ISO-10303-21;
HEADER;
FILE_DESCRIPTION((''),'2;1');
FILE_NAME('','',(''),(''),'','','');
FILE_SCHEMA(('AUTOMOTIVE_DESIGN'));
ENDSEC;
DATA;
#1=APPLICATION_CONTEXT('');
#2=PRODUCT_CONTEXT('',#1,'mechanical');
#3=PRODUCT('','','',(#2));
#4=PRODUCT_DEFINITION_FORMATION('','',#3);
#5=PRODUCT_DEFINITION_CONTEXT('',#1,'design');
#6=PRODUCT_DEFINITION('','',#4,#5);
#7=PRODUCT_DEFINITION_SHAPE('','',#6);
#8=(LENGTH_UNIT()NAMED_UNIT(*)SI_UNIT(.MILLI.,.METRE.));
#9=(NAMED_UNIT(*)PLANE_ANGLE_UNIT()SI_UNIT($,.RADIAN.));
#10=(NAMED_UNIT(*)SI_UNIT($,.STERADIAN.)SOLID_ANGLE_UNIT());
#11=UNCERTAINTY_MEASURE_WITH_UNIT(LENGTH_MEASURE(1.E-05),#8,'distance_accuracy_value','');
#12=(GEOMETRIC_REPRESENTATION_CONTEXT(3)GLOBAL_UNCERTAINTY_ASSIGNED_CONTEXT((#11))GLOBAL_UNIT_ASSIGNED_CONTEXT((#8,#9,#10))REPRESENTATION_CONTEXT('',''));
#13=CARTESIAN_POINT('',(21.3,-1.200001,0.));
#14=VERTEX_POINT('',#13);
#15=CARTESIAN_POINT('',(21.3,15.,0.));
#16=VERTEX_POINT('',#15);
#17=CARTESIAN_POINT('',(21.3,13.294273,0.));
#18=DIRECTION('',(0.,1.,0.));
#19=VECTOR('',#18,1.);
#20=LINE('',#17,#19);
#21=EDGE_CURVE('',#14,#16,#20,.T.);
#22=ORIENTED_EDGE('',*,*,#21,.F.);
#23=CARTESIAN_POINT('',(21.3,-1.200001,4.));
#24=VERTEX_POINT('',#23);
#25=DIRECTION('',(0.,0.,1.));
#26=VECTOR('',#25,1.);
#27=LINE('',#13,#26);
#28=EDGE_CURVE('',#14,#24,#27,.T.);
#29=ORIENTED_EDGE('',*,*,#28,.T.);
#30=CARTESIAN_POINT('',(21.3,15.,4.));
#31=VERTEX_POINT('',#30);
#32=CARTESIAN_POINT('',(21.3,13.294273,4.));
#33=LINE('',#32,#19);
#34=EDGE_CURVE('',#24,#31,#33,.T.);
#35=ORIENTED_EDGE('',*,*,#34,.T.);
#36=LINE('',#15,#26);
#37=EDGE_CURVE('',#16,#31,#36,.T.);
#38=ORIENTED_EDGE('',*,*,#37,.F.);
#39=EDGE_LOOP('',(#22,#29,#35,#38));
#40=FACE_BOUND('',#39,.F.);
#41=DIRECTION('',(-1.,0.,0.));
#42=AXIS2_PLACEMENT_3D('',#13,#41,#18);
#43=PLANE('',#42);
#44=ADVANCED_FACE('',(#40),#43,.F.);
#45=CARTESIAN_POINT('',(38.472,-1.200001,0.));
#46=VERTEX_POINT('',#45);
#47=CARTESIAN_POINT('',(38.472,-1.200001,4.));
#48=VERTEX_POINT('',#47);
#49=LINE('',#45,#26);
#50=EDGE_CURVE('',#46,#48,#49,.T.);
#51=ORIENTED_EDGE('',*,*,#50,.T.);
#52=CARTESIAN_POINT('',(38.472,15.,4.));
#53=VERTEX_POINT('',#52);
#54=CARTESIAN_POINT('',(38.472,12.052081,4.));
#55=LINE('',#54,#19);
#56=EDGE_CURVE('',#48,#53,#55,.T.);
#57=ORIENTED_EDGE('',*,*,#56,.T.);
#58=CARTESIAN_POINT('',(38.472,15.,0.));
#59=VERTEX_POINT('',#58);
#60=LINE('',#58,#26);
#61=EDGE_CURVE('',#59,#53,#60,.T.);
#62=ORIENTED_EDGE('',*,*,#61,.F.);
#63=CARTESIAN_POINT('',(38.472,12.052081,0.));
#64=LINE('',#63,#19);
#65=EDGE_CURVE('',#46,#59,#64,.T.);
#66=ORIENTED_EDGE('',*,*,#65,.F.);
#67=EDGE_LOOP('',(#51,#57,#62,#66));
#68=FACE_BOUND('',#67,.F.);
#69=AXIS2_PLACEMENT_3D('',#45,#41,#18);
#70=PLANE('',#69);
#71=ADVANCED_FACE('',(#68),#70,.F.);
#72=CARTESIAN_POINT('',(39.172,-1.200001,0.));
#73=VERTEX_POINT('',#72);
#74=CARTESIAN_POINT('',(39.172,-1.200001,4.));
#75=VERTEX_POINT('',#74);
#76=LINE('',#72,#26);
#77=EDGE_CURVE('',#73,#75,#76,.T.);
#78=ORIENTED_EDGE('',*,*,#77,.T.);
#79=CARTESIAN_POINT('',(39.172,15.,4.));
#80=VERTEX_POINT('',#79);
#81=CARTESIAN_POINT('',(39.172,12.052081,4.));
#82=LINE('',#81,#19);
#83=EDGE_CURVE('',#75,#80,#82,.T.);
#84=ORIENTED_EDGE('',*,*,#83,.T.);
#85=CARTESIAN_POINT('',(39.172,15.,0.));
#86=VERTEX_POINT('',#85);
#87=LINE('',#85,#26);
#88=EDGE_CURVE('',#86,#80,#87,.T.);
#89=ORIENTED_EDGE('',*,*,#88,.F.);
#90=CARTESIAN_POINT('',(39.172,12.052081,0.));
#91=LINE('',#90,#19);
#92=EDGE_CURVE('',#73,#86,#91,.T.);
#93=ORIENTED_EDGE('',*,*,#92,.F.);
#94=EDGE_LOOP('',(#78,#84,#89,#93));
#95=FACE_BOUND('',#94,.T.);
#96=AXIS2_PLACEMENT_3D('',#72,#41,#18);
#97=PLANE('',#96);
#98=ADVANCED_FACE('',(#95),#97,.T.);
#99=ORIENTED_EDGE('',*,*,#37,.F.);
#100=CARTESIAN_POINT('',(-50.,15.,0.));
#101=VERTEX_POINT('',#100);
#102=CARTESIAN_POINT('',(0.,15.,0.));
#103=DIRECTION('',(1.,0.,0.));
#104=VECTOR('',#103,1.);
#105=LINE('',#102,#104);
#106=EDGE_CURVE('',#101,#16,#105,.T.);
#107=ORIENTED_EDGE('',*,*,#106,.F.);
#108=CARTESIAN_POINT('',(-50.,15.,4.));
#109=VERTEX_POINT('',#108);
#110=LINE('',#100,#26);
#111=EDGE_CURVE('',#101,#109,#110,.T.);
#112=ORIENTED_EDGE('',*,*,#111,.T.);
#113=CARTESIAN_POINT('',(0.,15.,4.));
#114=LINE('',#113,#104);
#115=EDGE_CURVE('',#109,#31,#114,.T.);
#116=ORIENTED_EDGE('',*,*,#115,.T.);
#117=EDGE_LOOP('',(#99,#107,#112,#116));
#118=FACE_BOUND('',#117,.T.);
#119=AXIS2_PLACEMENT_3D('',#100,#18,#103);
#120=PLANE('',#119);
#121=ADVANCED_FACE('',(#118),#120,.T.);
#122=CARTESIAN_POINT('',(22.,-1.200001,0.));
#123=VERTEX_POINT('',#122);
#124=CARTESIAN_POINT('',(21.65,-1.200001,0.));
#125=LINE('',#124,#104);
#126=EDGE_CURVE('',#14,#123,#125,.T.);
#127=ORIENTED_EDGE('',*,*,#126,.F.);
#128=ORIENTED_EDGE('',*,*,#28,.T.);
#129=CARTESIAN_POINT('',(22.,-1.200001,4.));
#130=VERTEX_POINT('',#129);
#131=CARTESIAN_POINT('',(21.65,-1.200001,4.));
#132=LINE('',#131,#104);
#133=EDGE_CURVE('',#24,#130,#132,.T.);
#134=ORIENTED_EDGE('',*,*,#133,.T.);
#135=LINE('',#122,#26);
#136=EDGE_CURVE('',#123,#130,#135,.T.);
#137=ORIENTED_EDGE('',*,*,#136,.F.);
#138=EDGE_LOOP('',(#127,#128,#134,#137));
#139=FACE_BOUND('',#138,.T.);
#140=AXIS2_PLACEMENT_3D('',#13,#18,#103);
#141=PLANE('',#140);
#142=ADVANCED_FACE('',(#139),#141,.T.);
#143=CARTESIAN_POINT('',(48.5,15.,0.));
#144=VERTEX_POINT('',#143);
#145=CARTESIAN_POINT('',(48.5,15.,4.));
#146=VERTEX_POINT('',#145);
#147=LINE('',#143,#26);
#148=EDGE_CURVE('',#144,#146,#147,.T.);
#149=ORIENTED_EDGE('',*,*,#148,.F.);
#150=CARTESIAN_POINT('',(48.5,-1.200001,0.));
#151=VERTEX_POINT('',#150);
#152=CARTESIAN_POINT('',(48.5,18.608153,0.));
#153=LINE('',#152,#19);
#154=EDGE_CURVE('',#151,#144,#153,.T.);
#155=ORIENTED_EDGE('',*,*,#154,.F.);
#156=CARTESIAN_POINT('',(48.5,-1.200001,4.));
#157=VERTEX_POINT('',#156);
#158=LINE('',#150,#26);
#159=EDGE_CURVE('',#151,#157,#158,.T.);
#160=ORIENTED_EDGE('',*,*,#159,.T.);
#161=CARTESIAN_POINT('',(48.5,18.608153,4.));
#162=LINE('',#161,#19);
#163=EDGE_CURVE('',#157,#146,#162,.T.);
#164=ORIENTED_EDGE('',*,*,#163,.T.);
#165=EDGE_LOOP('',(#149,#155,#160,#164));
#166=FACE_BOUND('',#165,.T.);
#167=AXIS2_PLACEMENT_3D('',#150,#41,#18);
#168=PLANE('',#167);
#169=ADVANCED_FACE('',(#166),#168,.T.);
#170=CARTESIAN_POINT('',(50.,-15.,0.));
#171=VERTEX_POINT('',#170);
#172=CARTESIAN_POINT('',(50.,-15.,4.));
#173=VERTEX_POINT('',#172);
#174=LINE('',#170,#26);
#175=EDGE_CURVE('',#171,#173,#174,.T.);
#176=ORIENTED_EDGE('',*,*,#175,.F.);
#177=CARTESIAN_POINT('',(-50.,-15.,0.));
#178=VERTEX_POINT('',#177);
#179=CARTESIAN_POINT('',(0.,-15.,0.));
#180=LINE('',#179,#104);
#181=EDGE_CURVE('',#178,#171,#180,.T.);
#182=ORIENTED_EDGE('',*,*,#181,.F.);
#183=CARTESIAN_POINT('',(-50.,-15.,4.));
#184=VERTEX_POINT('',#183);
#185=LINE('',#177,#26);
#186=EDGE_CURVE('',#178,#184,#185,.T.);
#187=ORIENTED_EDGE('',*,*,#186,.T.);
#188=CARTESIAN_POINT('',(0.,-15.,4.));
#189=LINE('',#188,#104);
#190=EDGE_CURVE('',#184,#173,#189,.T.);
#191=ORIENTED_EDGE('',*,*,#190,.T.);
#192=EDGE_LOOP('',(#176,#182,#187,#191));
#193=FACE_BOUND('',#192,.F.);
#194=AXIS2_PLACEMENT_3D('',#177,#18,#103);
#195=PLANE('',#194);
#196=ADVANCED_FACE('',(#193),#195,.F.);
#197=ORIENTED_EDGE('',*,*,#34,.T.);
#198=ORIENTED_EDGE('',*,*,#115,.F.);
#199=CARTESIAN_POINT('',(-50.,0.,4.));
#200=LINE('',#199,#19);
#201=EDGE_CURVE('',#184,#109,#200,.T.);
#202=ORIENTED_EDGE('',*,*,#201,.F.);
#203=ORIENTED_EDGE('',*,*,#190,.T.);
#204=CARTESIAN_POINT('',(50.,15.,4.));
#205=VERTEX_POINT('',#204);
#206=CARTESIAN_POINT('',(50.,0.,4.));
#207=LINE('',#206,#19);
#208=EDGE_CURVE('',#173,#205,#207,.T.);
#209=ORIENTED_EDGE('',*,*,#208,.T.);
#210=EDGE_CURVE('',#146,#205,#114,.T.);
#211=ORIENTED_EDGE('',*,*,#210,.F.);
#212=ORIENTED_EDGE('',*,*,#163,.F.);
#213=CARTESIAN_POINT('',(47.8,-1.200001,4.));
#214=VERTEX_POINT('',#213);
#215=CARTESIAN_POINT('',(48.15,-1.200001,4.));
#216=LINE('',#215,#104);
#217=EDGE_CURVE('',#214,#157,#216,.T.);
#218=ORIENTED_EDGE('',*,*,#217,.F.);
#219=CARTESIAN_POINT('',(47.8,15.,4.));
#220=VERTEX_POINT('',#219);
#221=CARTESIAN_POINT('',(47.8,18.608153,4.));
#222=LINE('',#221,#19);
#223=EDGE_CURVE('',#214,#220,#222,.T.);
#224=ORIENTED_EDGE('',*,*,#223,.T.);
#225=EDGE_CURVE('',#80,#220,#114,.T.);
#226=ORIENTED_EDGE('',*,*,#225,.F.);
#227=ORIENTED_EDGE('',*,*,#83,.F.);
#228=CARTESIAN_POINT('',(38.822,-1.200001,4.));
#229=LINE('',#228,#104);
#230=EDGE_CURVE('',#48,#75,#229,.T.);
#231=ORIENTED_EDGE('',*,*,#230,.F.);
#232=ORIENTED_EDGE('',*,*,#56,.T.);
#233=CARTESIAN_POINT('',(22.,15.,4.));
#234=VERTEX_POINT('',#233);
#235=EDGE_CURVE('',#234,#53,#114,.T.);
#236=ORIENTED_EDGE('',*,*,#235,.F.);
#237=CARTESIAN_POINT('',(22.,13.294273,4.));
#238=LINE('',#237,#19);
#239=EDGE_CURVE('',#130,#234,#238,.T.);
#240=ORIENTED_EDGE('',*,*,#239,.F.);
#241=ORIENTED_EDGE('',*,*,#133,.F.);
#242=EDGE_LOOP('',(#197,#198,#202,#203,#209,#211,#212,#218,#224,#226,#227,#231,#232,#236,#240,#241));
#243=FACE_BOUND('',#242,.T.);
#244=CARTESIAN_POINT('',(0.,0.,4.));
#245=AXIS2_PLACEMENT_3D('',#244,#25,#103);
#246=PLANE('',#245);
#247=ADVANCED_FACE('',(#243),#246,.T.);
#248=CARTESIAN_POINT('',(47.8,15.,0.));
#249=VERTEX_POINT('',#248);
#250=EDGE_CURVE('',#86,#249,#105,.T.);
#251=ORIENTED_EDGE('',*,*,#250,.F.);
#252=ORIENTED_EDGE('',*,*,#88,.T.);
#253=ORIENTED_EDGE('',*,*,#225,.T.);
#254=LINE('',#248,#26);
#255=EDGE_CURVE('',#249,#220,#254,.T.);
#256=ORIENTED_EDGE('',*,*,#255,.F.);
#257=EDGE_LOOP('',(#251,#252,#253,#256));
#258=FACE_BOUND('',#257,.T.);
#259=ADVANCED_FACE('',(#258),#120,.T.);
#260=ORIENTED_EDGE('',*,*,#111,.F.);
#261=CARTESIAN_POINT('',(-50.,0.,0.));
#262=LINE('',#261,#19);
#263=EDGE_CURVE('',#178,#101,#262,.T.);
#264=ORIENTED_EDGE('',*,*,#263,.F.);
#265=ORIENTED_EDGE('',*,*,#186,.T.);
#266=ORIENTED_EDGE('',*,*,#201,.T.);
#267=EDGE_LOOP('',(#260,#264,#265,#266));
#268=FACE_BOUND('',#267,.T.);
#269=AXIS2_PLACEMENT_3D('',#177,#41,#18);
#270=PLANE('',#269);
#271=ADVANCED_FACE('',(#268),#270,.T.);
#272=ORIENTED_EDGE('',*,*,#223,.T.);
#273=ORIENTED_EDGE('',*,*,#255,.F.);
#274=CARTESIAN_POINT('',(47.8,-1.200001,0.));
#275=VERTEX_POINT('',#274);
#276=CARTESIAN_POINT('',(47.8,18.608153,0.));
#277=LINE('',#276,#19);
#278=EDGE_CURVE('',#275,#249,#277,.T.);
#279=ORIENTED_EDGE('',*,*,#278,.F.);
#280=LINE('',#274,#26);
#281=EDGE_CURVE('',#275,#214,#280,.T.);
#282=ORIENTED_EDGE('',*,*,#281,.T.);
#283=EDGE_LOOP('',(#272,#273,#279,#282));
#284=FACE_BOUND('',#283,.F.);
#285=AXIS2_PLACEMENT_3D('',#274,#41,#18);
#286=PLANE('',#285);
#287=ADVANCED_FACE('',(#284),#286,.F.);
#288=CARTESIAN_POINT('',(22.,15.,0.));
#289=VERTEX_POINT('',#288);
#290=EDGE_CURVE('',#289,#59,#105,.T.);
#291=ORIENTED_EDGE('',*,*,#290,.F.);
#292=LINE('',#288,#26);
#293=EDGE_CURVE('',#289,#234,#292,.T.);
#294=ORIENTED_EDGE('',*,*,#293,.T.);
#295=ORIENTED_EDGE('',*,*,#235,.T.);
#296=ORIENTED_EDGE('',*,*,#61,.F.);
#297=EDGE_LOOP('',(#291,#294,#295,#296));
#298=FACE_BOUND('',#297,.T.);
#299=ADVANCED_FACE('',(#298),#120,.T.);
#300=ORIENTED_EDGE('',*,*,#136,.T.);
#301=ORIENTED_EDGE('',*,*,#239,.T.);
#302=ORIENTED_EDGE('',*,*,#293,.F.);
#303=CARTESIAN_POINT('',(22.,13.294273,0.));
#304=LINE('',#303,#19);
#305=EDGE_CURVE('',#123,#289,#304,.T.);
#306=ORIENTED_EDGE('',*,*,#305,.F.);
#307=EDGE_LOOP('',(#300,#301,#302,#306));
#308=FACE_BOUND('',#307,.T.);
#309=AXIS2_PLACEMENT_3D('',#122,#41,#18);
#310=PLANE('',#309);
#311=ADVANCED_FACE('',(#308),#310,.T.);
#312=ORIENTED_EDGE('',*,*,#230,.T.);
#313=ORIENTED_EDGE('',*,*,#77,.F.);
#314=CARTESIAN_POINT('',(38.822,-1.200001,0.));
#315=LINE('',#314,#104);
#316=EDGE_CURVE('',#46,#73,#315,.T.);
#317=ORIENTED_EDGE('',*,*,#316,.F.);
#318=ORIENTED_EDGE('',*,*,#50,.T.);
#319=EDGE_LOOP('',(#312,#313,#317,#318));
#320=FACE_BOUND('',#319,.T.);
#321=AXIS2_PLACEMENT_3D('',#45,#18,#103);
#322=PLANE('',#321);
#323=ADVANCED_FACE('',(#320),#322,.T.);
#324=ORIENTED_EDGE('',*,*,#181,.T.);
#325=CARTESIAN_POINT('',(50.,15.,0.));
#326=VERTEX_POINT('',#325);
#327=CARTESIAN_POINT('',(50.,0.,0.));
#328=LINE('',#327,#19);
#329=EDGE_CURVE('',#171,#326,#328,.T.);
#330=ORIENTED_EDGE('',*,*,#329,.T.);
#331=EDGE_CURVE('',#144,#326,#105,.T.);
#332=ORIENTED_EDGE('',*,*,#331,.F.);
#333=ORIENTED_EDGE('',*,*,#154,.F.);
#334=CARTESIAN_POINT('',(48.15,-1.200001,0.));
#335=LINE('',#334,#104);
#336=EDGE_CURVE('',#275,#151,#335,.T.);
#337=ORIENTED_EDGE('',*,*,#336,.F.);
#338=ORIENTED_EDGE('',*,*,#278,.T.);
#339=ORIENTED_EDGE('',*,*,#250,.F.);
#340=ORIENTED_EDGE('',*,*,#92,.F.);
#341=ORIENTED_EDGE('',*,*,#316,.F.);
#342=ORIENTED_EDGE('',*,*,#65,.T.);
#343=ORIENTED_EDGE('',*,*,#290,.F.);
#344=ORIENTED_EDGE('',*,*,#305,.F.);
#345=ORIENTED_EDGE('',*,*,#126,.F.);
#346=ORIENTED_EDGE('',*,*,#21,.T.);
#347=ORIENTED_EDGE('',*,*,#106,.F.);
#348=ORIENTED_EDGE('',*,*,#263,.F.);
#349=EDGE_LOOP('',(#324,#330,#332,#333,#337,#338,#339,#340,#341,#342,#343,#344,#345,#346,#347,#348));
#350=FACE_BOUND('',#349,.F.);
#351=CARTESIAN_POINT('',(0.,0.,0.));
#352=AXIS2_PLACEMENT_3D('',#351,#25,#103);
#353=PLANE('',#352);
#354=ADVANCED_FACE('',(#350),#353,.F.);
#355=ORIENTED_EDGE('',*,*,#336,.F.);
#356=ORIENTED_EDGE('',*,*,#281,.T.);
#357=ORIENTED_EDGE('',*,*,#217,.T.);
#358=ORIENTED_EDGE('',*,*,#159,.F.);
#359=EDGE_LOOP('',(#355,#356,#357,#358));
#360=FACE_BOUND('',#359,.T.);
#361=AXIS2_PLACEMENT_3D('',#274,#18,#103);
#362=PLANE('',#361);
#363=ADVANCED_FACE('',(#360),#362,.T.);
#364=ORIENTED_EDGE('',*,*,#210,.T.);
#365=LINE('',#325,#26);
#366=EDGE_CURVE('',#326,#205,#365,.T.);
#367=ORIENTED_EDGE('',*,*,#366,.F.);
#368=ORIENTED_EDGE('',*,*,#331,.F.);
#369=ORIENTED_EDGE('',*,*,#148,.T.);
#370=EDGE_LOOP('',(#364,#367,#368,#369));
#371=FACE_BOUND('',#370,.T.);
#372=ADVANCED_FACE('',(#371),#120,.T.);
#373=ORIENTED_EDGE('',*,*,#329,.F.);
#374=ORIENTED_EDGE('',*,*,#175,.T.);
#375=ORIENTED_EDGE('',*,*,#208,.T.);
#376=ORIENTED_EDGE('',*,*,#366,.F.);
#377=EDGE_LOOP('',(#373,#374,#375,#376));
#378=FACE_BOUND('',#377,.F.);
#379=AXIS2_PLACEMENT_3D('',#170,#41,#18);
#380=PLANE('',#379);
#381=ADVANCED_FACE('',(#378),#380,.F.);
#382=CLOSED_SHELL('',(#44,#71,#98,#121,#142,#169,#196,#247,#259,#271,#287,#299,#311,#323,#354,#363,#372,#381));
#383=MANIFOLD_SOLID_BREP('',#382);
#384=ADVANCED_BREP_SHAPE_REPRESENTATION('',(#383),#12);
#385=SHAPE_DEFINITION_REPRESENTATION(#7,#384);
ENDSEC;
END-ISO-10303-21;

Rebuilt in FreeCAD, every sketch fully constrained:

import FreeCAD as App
import Part
import Sketcher

V = App.Vector

doc = App.newDocument("Part")
params = doc.addObject("Spreadsheet::Sheet", "Params")
for row, (alias, value) in enumerate([
    ("sketch1_width", "100 mm"),
    ("sketch1_height", "30 mm"),
    ("pad1_length", "4 mm"),
    ("sketch2_width", "0.7 mm"),
    ("pocket1_length", "4 mm"),
], start=1):
    params.set(f"A{row}", alias)
    params.set(f"B{row}", "=" + value)
    params.setAlias(f"B{row}", alias)

body = doc.addObject("PartDesign::Body", "Body")

# Sketch on XY plane
sketch1 = body.newObject("Sketcher::SketchObject", "Sketch")
sketch1.AttachmentSupport = (doc.getObject("XY_Plane"), [""])
sketch1.MapMode = "FlatFace"
sketch1.addGeometry([
    Part.LineSegment(V(-50, 15, 0), V(-50, -15, 0)),
    Part.LineSegment(V(-50, -15, 0), V(50, -15, 0)),
    Part.LineSegment(V(50, -15, 0), V(50, 15, 0)),
    Part.LineSegment(V(50, 15, 0), V(-50, 15, 0)),
], False)
sketch1.addConstraint([
    Sketcher.Constraint("Coincident", 0, 2, 1, 1),
    Sketcher.Constraint("Coincident", 1, 2, 2, 1),
    Sketcher.Constraint("Coincident", 2, 2, 3, 1),
    Sketcher.Constraint("Coincident", 3, 2, 0, 1),
    Sketcher.Constraint("Vertical", 0),
    Sketcher.Constraint("Horizontal", 1),
    Sketcher.Constraint("Vertical", 2),
    Sketcher.Constraint("Horizontal", 3),
    Sketcher.Constraint("Symmetric", 0, 2, 2, 2, -1, 1),
    Sketcher.Constraint("DistanceX", 1, 1, 1, 2, 100.0),
    Sketcher.Constraint("DistanceY", 0, 2, 0, 1, 30.0),
])
sketch1.setExpression("Constraints[9]", "Params.sketch1_width")
sketch1.setExpression("Constraints[10]", "Params.sketch1_height")
pad1 = body.newObject("PartDesign::Pad", "Pad")
pad1.Profile = sketch1
pad1.setExpression("Length", "Params.pad1_length")

# Sketch on XY plane
sketch2 = body.newObject("Sketcher::SketchObject", "Sketch001")
sketch2.AttachmentSupport = (doc.getObject("XY_Plane"), [""])
sketch2.MapMode = "FlatFace"
sketch2.addGeometry([
    Part.LineSegment(V(21.3, 27.8, 0), V(21.3, -1.2, 0)),  # 0
    Part.LineSegment(V(21.3, -1.2, 0), V(22, -1.2, 0)),  # 1
    Part.LineSegment(V(22, -1.2, 0), V(22, 27.8, 0)),  # 2
    Part.LineSegment(V(22, 27.8, 0), V(21.3, 27.8, 0)),  # 3
    Part.LineSegment(V(47.8, 38.4, 0), V(47.8, -1.2, 0)),  # 4
    Part.LineSegment(V(47.8, -1.2, 0), V(48.5, -1.2, 0)),  # 5
    Part.LineSegment(V(48.5, -1.2, 0), V(48.5, 38.4, 0)),  # 6
    Part.LineSegment(V(48.5, 38.4, 0), V(47.8, 38.4, 0)),  # 7
    Part.LineSegment(V(38.5, 25.3, 0), V(38.5, -1.2, 0)),  # 8
    Part.LineSegment(V(38.5, -1.2, 0), V(39.2, -1.2, 0)),  # 9
    Part.LineSegment(V(39.2, -1.2, 0), V(39.2, 25.3, 0)),  # 10
    Part.LineSegment(V(39.2, 25.3, 0), V(38.5, 25.3, 0)),  # 11
], False)
sketch2.addConstraint([
    Sketcher.Constraint("Coincident", 0, 2, 1, 1),
    Sketcher.Constraint("Coincident", 1, 2, 2, 1),
    Sketcher.Constraint("Coincident", 2, 2, 3, 1),
    Sketcher.Constraint("Coincident", 3, 2, 0, 1),
    Sketcher.Constraint("Coincident", 4, 2, 5, 1),
    Sketcher.Constraint("Coincident", 5, 2, 6, 1),
    Sketcher.Constraint("Coincident", 6, 2, 7, 1),
    Sketcher.Constraint("Coincident", 7, 2, 4, 1),
    Sketcher.Constraint("Coincident", 8, 2, 9, 1),
    Sketcher.Constraint("Coincident", 9, 2, 10, 1),
    Sketcher.Constraint("Coincident", 10, 2, 11, 1),
    Sketcher.Constraint("Coincident", 11, 2, 8, 1),
    Sketcher.Constraint("Vertical", 0),
    Sketcher.Constraint("Horizontal", 1),
    Sketcher.Constraint("Vertical", 2),
    Sketcher.Constraint("Horizontal", 3),
    Sketcher.Constraint("Vertical", 4),
    Sketcher.Constraint("Horizontal", 5),
    Sketcher.Constraint("Vertical", 6),
    Sketcher.Constraint("Horizontal", 7),
    Sketcher.Constraint("Vertical", 8),
    Sketcher.Constraint("Horizontal", 9),
    Sketcher.Constraint("Vertical", 10),
    Sketcher.Constraint("Horizontal", 11),
    Sketcher.Constraint("Horizontal", 1, 2, 4, 2),
    Sketcher.Constraint("Horizontal", 5, 2, 8, 2),
    Sketcher.Constraint("Equal", 3, 5),
    Sketcher.Constraint("Equal", 7, 9),
    Sketcher.Constraint("DistanceX", 1, 1, 1, 2, 0.7),
    Sketcher.Constraint("DistanceX", -1, 1, 1, 2, 22.0),
    Sketcher.Constraint("DistanceY", 0, 2, -1, 1, 1.200001),
    Sketcher.Constraint("DistanceX", -1, 1, 4, 2, 47.8),
    Sketcher.Constraint("DistanceX", -1, 1, 8, 2, 38.472),
    Sketcher.Constraint("DistanceY", 0, 2, 0, 1, 28.988547),
    Sketcher.Constraint("DistanceY", 4, 2, 4, 1, 39.616307),
    Sketcher.Constraint("DistanceY", 8, 2, 8, 1, 26.504163),
])
sketch2.setExpression("Constraints[28]", "Params.sketch2_width")
pocket1 = body.newObject("PartDesign::Pocket", "Pocket")
pocket1.Profile = sketch2
pocket1.setExpression("Length", "Params.pocket1_length")
pocket1.Reversed = True

doc.recompute()
